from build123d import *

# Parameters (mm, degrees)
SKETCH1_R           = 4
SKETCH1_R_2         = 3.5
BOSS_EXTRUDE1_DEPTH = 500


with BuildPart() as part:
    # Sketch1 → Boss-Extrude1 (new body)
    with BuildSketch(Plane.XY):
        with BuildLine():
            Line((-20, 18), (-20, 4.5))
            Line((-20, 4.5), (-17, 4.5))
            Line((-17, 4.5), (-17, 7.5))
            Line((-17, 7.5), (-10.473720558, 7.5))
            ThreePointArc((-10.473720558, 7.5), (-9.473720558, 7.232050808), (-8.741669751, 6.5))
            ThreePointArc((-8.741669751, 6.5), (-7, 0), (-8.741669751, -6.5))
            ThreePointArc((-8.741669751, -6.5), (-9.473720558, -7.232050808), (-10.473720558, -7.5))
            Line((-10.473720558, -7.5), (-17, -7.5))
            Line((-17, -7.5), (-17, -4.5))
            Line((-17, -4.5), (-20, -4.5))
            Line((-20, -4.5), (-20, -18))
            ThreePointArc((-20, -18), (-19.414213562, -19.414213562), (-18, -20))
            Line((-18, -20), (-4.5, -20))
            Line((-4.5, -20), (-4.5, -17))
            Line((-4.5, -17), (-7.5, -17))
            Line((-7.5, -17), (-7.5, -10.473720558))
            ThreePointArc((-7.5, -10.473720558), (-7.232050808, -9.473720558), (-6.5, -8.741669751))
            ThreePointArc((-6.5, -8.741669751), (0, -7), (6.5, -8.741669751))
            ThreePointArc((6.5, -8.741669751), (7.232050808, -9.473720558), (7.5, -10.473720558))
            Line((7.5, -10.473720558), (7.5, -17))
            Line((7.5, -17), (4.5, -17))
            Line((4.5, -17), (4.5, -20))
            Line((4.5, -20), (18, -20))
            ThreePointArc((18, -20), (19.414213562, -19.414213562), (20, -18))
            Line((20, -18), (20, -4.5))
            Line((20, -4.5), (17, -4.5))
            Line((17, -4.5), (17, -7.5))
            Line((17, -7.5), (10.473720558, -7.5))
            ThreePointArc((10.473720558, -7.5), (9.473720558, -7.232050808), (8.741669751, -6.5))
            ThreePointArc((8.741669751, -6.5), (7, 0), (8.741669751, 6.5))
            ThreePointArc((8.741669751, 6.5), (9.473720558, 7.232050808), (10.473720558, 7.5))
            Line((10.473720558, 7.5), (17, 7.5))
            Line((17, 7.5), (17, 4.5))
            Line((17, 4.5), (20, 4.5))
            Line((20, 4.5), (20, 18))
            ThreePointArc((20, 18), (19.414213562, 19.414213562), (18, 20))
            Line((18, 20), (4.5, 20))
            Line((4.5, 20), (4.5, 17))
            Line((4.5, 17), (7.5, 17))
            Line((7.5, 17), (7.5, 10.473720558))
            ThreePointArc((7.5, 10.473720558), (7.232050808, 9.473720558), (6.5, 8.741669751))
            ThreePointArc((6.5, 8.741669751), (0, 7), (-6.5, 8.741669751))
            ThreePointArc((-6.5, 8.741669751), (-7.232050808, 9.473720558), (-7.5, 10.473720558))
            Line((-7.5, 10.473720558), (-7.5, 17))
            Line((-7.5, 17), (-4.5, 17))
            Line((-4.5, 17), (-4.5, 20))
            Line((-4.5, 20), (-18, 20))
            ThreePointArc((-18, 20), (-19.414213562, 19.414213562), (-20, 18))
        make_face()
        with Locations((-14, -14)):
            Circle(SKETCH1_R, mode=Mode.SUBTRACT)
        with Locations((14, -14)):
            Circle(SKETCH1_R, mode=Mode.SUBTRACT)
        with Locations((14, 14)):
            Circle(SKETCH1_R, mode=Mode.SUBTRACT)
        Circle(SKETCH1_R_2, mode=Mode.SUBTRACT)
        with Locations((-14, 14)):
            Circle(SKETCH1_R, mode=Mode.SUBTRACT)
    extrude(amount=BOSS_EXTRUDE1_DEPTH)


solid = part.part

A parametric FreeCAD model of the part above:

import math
import FreeCAD as App
import Part
import Sketcher

V = App.Vector
Q = App.Units.Quantity

doc = App.newDocument("Part")
body = doc.addObject("PartDesign::Body", "Body")

# Sketch on XY plane
sketch1 = body.newObject("Sketcher::SketchObject", "Sketch")
sketch1.AttachmentSupport = (doc.getObject("XY_Plane"), [""])
sketch1.MapMode = "FlatFace"
sketch1.addGeometry([
    Part.LineSegment(V(-20, 18, 0), V(-20, 4.5, 0)),  # 0
    Part.LineSegment(V(-20, 4.5, 0), V(-17, 4.5, 0)),  # 1
    Part.LineSegment(V(-17, 4.5, 0), V(-17, 7.5, 0)),  # 2
    Part.LineSegment(V(-17, 7.5, 0), V(-10.5, 7.5, 0)),  # 3
    Part.ArcOfCircle(Part.Circle(V(-10.5, 5.5, 0), V(0, 0, 1), 2), math.radians(30), math.radians(90)),  # 4
    Part.ArcOfCircle(Part.Circle(V(-20, 0, 0), V(0, 0, 1), 13), math.radians(-30), math.radians(30)),  # 5
    Part.ArcOfCircle(Part.Circle(V(-10.5, -5.5, 0), V(0, 0, 1), 2), math.radians(-90), math.radians(-30)),  # 6
    Part.LineSegment(V(-10.5, -7.5, 0), V(-17, -7.5, 0)),  # 7
    Part.LineSegment(V(-17, -7.5, 0), V(-17, -4.5, 0)),  # 8
    Part.LineSegment(V(-17, -4.5, 0), V(-20, -4.5, 0)),  # 9
    Part.LineSegment(V(-20, -4.5, 0), V(-20, -18, 0)),  # 10
    Part.ArcOfCircle(Part.Circle(V(-18, -18, 0), V(0, 0, 1), 2), math.radians(-180), math.radians(-90)),  # 11
    Part.LineSegment(V(-18, -20, 0), V(-4.5, -20, 0)),  # 12
    Part.LineSegment(V(-4.5, -20, 0), V(-4.5, -17, 0)),  # 13
    Part.LineSegment(V(-4.5, -17, 0), V(-7.5, -17, 0)),  # 14
    Part.LineSegment(V(-7.5, -17, 0), V(-7.5, -10.5, 0)),  # 15
    Part.ArcOfCircle(Part.Circle(V(-5.5, -10.5, 0), V(0, 0, 1), 2), math.radians(120), math.radians(180)),  # 16
    Part.ArcOfCircle(Part.Circle(V(0, -20, 0), V(0, 0, 1), 13), math.radians(60), math.radians(120)),  # 17
    Part.ArcOfCircle(Part.Circle(V(5.5, -10.5, 0), V(0, 0, 1), 2), math.radians(0), math.radians(60)),  # 18
    Part.LineSegment(V(7.5, -10.5, 0), V(7.5, -17, 0)),  # 19
    Part.LineSegment(V(7.5, -17, 0), V(4.5, -17, 0)),  # 20
    Part.LineSegment(V(4.5, -17, 0), V(4.5, -20, 0)),  # 21
    Part.LineSegment(V(4.5, -20, 0), V(18, -20, 0)),  # 22
    Part.ArcOfCircle(Part.Circle(V(18, -18, 0), V(0, 0, 1), 2), math.radians(-90), math.radians(0)),  # 23
    Part.LineSegment(V(20, -18, 0), V(20, -4.5, 0)),  # 24
    Part.LineSegment(V(20, -4.5, 0), V(17, -4.5, 0)),  # 25
    Part.LineSegment(V(17, -4.5, 0), V(17, -7.5, 0)),  # 26
    Part.LineSegment(V(17, -7.5, 0), V(10.5, -7.5, 0)),  # 27
    Part.ArcOfCircle(Part.Circle(V(10.5, -5.5, 0), V(0, 0, 1), 2), math.radians(-150), math.radians(-90)),  # 28
    Part.ArcOfCircle(Part.Circle(V(20, 0, 0), V(0, 0, 1), 13), math.radians(150), math.radians(210)),  # 29
    Part.ArcOfCircle(Part.Circle(V(10.5, 5.5, 0), V(0, 0, 1), 2), math.radians(90), math.radians(150)),  # 30
    Part.LineSegment(V(10.5, 7.5, 0), V(17, 7.5, 0)),  # 31
    Part.LineSegment(V(17, 7.5, 0), V(17, 4.5, 0)),  # 32
    Part.LineSegment(V(17, 4.5, 0), V(20, 4.5, 0)),  # 33
    Part.LineSegment(V(20, 4.5, 0), V(20, 18, 0)),  # 34
    Part.ArcOfCircle(Part.Circle(V(18, 18, 0), V(0, 0, 1), 2), math.radians(0), math.radians(90)),  # 35
    Part.LineSegment(V(18, 20, 0), V(4.5, 20, 0)),  # 36
    Part.LineSegment(V(4.5, 20, 0), V(4.5, 17, 0)),  # 37
    Part.LineSegment(V(4.5, 17, 0), V(7.5, 17, 0)),  # 38
    Part.LineSegment(V(7.5, 17, 0), V(7.5, 10.5, 0)),  # 39
    Part.ArcOfCircle(Part.Circle(V(5.5, 10.5, 0), V(0, 0, 1), 2), math.radians(-60), math.radians(0)),  # 40
    Part.ArcOfCircle(Part.Circle(V(0, 20, 0), V(0, 0, 1), 13), math.radians(-120), math.radians(-60)),  # 41
    Part.ArcOfCircle(Part.Circle(V(-5.5, 10.5, 0), V(0, 0, 1), 2), math.radians(180), math.radians(240)),  # 42
    Part.LineSegment(V(-7.5, 10.5, 0), V(-7.5, 17, 0)),  # 43
    Part.LineSegment(V(-7.5, 17, 0), V(-4.5, 17, 0)),  # 44
    Part.LineSegment(V(-4.5, 17, 0), V(-4.5, 20, 0)),  # 45
    Part.LineSegment(V(-4.5, 20, 0), V(-18, 20, 0)),  # 46
    Part.ArcOfCircle(Part.Circle(V(-18, 18, 0), V(0, 0, 1), 2), math.radians(90), math.radians(180)),  # 47
    Part.Circle(V(-14, -14, 0), V(0, 0, 1), 4),  # 48
    Part.Circle(V(14, -14, 0), V(0, 0, 1), 4),  # 49
    Part.Circle(V(-14, 14, 0), V(0, 0, 1), 4),  # 50
    Part.Circle(V(0, 0, 0), V(0, 0, 1), 3.5),  # 51
    Part.Circle(V(14, 14, 0), V(0, 0, 1), 4),  # 52
], False)
sketch1.addConstraint([
    Sketcher.Constraint("Coincident", 0, 2, 1, 1),
    Sketcher.Constraint("Coincident", 1, 2, 2, 1),
    Sketcher.Constraint("Coincident", 2, 2, 3, 1),
    Sketcher.Constraint("Tangent", 3, 2, 4, 2),
    Sketcher.Constraint("Tangent", 4, 1, 5, 2),
    Sketcher.Constraint("Tangent", 5, 1, 6, 2),
    Sketcher.Constraint("Tangent", 6, 1, 7, 1),
    Sketcher.Constraint("Coincident", 7, 2, 8, 1),
    Sketcher.Constraint("Coincident", 8, 2, 9, 1),
    Sketcher.Constraint("Coincident", 9, 2, 10, 1),
    Sketcher.Constraint("Tangent", 10, 2, 11, 1),
    Sketcher.Constraint("Tangent", 11, 2, 12, 1),
    Sketcher.Constraint("Coincident", 12, 2, 13, 1),
    Sketcher.Constraint("Coincident", 13, 2, 14, 1),
    Sketcher.Constraint("Coincident", 14, 2, 15, 1),
    Sketcher.Constraint("Tangent", 15, 2, 16, 2),
    Sketcher.Constraint("Tangent", 16, 1, 17, 2),
    Sketcher.Constraint("Tangent", 17, 1, 18, 2),
    Sketcher.Constraint("Tangent", 18, 1, 19, 1),
    Sketcher.Constraint("Coincident", 19, 2, 20, 1),
    Sketcher.Constraint("Coincident", 20, 2, 21, 1),
    Sketcher.Constraint("Coincident", 21, 2, 22, 1),
    Sketcher.Constraint("Tangent", 22, 2, 23, 1),
    Sketcher.Constraint("Tangent", 23, 2, 24, 1),
    Sketcher.Constraint("Coincident", 24, 2, 25, 1),
    Sketcher.Constraint("Coincident", 25, 2, 26, 1),
    Sketcher.Constraint("Coincident", 26, 2, 27, 1),
    Sketcher.Constraint("Tangent", 27, 2, 28, 2),
    Sketcher.Constraint("Tangent", 28, 1, 29, 2),
    Sketcher.Constraint("Tangent", 29, 1, 30, 2),
    Sketcher.Constraint("Tangent", 30, 1, 31, 1),
    Sketcher.Constraint("Coincident", 31, 2, 32, 1),
    Sketcher.Constraint("Coincident", 32, 2, 33, 1),
    Sketcher.Constraint("Coincident", 33, 2, 34, 1),
    Sketcher.Constraint("Tangent", 34, 2, 35, 1),
    Sketcher.Constraint("Tangent", 35, 2, 36, 1),
    Sketcher.Constraint("Coincident", 36, 2, 37, 1),
    Sketcher.Constraint("Coincident", 37, 2, 38, 1),
    Sketcher.Constraint("Coincident", 38, 2, 39, 1),
    Sketcher.Constraint("Tangent", 39, 2, 40, 2),
    Sketcher.Constraint("Tangent", 40, 1, 41, 2),
    Sketcher.Constraint("Tangent", 41, 1, 42, 2),
    Sketcher.Constraint("Tangent", 42, 1, 43, 1),
    Sketcher.Constraint("Coincident", 43, 2, 44, 1),
    Sketcher.Constraint("Coincident", 44, 2, 45, 1),
    Sketcher.Constraint("Coincident", 45, 2, 46, 1),
    Sketcher.Constraint("Tangent", 46, 2, 47, 1),
    Sketcher.Constraint("Tangent", 47, 2, 0, 1),
    Sketcher.Constraint("Vertical", 0),
    Sketcher.Constraint("Horizontal", 1),
    Sketcher.Constraint("Vertical", 2),
    Sketcher.Constraint("Horizontal", 3),
    Sketcher.Constraint("Horizontal", 7),
    Sketcher.Constraint("Vertical", 8),
    Sketcher.Constraint("Horizontal", 9),
    Sketcher.Constraint("Vertical", 10),
    Sketcher.Constraint("Horizontal", 12),
    Sketcher.Constraint("Vertical", 13),
    Sketcher.Constraint("Horizontal", 14),
    Sketcher.Constraint("Vertical", 15),
    Sketcher.Constraint("Vertical", 19),
    Sketcher.Constraint("Horizontal", 20),
    Sketcher.Constraint("Vertical", 21),
    Sketcher.Constraint("Horizontal", 22),
    Sketcher.Constraint("Vertical", 24),
    Sketcher.Constraint("Horizontal", 25),
    Sketcher.Constraint("Vertical", 26),
    Sketcher.Constraint("Horizontal", 27),
    Sketcher.Constraint("Horizontal", 31),
    Sketcher.Constraint("Vertical", 32),
    Sketcher.Constraint("Horizontal", 33),
    Sketcher.Constraint("Vertical", 34),
    Sketcher.Constraint("Horizontal", 36),
    Sketcher.Constraint("Vertical", 37),
    Sketcher.Constraint("Horizontal", 38),
    Sketcher.Constraint("Vertical", 39),
    Sketcher.Constraint("Vertical", 43),
    Sketcher.Constraint("Horizontal", 44),
    Sketcher.Constraint("Vertical", 45),
    Sketcher.Constraint("Horizontal", 46),
    Sketcher.Constraint("Coincident", 51, 3, -1, 1),
    Sketcher.Constraint("Equal", 4, 6),
    Sketcher.Constraint("Equal", 6, 11),
    Sketcher.Constraint("Equal", 11, 16),
    Sketcher.Constraint("Equal", 5, 17),
    Sketcher.Constraint("Equal", 16, 18),
    Sketcher.Constraint("Equal", 18, 23),
    Sketcher.Constraint("Equal", 23, 28),
    Sketcher.Constraint("Equal", 17, 29),
    Sketcher.Constraint("Equal", 28, 30),
    Sketcher.Constraint("Equal", 30, 35),
    Sketcher.Constraint("Equal", 35, 40),
    Sketcher.Constraint("Equal", 29, 41),
    Sketcher.Constraint("Equal", 40, 42),
    Sketcher.Constraint("Equal", 42, 47),
    Sketcher.Constraint("Equal", 48, 49),
    Sketcher.Constraint("Equal", 49, 50),
    Sketcher.Constraint("Equal", 50, 52),
    Sketcher.Constraint("Symmetric", 4, 3, 28, 3, -1, 1),
    Sketcher.Constraint("Symmetric", 6, 3, 30, 3, -1, 1),
    Sketcher.Constraint("Symmetric", 11, 3, 35, 3, -1, 1),
    Sketcher.Constraint("Symmetric", 16, 3, 40, 3, -1, 1),
    Sketcher.Constraint("Symmetric", 18, 3, 42, 3, -1, 1),
    Sketcher.Constraint("Symmetric", 23, 3, 47, 3, -1, 1),
    Sketcher.Constraint("Symmetric", 49, 3, 50, 3, -1, 1),
    Sketcher.Constraint("Symmetric", 48, 3, 52, 3, -1, 1),
    Sketcher.Constraint("Symmetric", 1, 2, 25, 2, -1, 1),
    Sketcher.Constraint("Symmetric", 8, 2, 32, 2, -1, 1),
    Sketcher.Constraint("Symmetric", 13, 2, 37, 2, -1, 1),
    Sketcher.Constraint("Symmetric", 20, 2, 44, 2, -1, 1),
    Sketcher.Constraint("Symmetric", 16, 3, 18, 3, -2),
    Sketcher.Constraint("Symmetric", 11, 3, 23, 3, -2),
    Sketcher.Constraint("Symmetric", 6, 3, 28, 3, -2),
    Sketcher.Constraint("Symmetric", 48, 3, 49, 3, -2),
    Sketcher.Constraint("Symmetric", 13, 2, 20, 2, -2),
    Sketcher.Constraint("Symmetric", 8, 2, 25, 2, -2),
    Sketcher.Constraint("Horizontal", 17, 3, 11, 2),
    Sketcher.Constraint("Vertical", 5, 3, 0, 2),
    Sketcher.Constraint("Equal", 9, 14),
    Sketcher.Constraint("Equal", 46, 0),
    Sketcher.Constraint("Equal", 44, 2),
    Sketcher.Constraint("Equal", 8, 13),
    Sketcher.Constraint("Equal", 31, 15),
    Sketcher.Constraint("Diameter", 48, Q("8 mm")),
    Sketcher.Constraint("Diameter", 51, Q("7 mm")),
    Sketcher.Constraint("Radius", 4, Q("2 mm")),
    Sketcher.Constraint("Radius", 5, Q("13 mm")),
    Sketcher.Constraint("DistanceX", 1, 1, 1, 2, Q("3 mm")),
    Sketcher.Constraint("DistanceX", 12, 1, 12, 2, Q("13.5 mm")),
    Sketcher.Constraint("DistanceX", 5, 3, -1, 1, Q("20 mm")),
    Sketcher.Constraint("DistanceX", 48, 3, -1, 1, Q("14 mm")),
    Sketcher.Constraint("DistanceY", 48, 3, -1, 1, Q("14 mm")),
])
pad1 = body.newObject("PartDesign::Pad", "Pad")
pad1.Profile = sketch1
pad1.Length = 500

doc.recompute()
